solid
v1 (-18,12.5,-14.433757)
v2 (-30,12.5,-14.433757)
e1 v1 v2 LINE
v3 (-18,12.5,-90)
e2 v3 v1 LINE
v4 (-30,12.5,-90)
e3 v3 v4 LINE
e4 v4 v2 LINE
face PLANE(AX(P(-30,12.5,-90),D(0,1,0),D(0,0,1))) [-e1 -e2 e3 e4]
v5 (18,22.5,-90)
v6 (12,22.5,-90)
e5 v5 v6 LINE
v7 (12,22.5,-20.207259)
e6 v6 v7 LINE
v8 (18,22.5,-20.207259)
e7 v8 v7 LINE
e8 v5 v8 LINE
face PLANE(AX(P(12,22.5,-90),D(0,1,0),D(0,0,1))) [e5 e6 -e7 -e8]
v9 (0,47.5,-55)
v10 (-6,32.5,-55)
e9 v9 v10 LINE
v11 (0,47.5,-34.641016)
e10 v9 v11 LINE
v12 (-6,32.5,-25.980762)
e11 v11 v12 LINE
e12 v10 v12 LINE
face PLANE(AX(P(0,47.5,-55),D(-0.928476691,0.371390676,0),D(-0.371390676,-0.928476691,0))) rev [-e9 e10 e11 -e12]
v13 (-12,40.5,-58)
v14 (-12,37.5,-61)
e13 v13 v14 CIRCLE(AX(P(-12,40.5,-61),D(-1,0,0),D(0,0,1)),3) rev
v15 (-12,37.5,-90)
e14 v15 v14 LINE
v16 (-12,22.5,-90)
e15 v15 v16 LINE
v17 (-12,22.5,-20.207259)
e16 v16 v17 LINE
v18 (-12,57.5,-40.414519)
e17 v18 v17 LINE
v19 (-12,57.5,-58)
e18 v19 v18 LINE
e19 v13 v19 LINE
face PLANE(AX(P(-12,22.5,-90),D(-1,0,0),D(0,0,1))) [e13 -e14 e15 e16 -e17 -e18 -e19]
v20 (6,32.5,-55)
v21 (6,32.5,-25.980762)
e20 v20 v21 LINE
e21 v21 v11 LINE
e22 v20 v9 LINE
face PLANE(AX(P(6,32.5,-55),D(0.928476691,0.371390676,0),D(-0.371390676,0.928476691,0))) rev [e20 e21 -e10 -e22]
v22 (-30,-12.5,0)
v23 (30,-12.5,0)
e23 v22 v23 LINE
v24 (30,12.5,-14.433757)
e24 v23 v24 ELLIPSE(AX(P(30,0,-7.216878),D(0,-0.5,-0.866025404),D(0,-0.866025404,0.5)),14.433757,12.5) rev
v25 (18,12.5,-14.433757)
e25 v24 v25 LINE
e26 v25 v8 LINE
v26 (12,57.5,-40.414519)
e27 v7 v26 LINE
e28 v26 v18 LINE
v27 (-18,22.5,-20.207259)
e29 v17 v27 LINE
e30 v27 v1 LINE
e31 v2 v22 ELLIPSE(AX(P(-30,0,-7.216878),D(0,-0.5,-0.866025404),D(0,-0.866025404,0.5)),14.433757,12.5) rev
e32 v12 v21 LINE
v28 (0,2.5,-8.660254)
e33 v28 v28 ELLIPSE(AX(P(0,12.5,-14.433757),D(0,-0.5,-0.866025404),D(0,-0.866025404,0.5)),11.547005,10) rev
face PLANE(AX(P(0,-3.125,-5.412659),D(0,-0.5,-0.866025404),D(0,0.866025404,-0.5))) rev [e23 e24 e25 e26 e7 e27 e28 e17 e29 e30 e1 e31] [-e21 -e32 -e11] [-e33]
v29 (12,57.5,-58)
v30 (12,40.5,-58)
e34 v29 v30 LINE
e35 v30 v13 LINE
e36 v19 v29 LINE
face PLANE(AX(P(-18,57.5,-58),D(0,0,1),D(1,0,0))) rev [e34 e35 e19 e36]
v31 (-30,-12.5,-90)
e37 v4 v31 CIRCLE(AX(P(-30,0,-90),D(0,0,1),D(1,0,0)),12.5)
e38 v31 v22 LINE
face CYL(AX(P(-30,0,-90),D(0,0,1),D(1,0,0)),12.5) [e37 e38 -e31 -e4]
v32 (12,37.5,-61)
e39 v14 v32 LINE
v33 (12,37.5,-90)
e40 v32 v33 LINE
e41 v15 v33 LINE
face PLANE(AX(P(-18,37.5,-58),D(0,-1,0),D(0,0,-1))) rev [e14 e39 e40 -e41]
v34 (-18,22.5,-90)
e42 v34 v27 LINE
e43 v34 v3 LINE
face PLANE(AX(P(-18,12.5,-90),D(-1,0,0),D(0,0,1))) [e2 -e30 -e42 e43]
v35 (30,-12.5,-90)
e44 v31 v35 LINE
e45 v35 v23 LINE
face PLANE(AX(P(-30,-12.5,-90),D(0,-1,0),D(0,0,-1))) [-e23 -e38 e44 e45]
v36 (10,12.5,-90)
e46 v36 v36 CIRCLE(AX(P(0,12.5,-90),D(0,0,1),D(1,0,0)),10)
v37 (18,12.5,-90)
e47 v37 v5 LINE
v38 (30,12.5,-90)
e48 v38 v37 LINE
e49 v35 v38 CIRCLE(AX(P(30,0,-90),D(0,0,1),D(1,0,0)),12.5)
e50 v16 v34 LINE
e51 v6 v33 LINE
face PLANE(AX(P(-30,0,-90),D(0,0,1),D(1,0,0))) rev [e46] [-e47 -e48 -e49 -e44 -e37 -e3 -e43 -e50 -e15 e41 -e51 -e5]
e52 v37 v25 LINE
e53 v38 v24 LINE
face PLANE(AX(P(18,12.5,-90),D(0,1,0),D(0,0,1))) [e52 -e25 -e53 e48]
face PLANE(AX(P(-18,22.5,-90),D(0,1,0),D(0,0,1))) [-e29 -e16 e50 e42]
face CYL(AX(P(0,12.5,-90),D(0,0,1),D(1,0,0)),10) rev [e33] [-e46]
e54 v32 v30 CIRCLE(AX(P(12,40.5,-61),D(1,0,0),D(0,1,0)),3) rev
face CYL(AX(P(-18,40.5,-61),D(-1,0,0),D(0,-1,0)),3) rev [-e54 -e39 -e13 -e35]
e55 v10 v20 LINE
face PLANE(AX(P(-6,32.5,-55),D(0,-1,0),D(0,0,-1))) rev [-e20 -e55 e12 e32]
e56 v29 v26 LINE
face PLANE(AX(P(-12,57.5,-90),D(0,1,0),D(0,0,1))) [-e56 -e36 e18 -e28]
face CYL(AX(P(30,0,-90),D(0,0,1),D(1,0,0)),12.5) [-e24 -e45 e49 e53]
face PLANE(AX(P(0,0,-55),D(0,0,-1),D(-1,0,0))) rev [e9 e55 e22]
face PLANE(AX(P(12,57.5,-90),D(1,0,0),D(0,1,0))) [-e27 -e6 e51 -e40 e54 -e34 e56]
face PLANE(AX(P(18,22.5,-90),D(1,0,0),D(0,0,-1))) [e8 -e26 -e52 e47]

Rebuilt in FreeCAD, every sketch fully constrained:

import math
import FreeCAD as App
import Part
import Sketcher
from FreeCAD import Vector
Q = App.Units.Quantity


def edges_at(feature, points):
    """Names of the edges that pass closest to the given points."""
    edges = feature.Shape.Edges
    near = lambda p: min(range(len(edges)), key=lambda i: edges[i].distToShape(Part.Vertex(*p))[0])
    return sorted({f"Edge{near(p) + 1}" for p in points})


def add_polygon(sketch, points):
    """Adds a closed chain of lines whose ends are joined by coincident constraints."""
    first, n = sketch.GeometryCount, len(points)
    for a, b in zip(points, points[1:] + points[:1]):
        sketch.addGeometry(Part.LineSegment(App.Vector(*a, 0), App.Vector(*b, 0)), False)
    for i in range(n):
        sketch.addConstraint(Sketcher.Constraint("Coincident", first + i, 2, first + (i + 1) % n, 1))

doc = App.newDocument("Part")
body = doc.addObject("PartDesign::Body", "Body")

sketch1 = doc.addObject("Sketcher::SketchObject", "Sketch")
body.addObject(sketch1)
sketch1.AttachmentSupport = (doc.XY_Plane, [""])
sketch1.MapMode = "FlatFace"
sketch1.addGeometry([
    Part.LineSegment(Vector(-18, 12, 0), Vector(-30, 12, 0)),
    Part.ArcOfCircle(Part.Circle(Vector(-30, 0, 0), Vector(0, 0, 1), 12), math.radians(90), math.radians(270)),
    Part.LineSegment(Vector(-30, -12, 0), Vector(30, -12, 0)),
    Part.ArcOfCircle(Part.Circle(Vector(30, 0, 0), Vector(0, 0, 1), 12), math.radians(-90), math.radians(90)),
    Part.LineSegment(Vector(30, 12, 0), Vector(18, 12, 0)),
    Part.LineSegment(Vector(18, 12, 0), Vector(18, 22, 0)),
    Part.LineSegment(Vector(18, 22, 0), Vector(12, 22, 0)),
    Part.LineSegment(Vector(12, 22, 0), Vector(12, 58, 0)),
    Part.LineSegment(Vector(12, 58, 0), Vector(-12, 58, 0)),
    Part.LineSegment(Vector(-12, 58, 0), Vector(-12, 22, 0)),
    Part.LineSegment(Vector(-12, 22, 0), Vector(-18, 22, 0)),
    Part.LineSegment(Vector(-18, 22, 0), Vector(-18, 12, 0)),
    Part.Circle(Vector(0, 12, 0), Vector(0, 0, 1), 10),
], False)
sketch1.addConstraint([
    Sketcher.Constraint("Tangent", 0, 2, 1, 1),
    Sketcher.Constraint("Tangent", 1, 2, 2, 1),
    Sketcher.Constraint("Tangent", 2, 2, 3, 1),
    Sketcher.Constraint("Tangent", 3, 2, 4, 1),
    Sketcher.Constraint("Coincident", 4, 2, 5, 1),
    Sketcher.Constraint("Coincident", 5, 2, 6, 1),
    Sketcher.Constraint("Coincident", 6, 2, 7, 1),
    Sketcher.Constraint("Coincident", 7, 2, 8, 1),
    Sketcher.Constraint("Coincident", 8, 2, 9, 1),
    Sketcher.Constraint("Coincident", 9, 2, 10, 1),
    Sketcher.Constraint("Coincident", 10, 2, 11, 1),
    Sketcher.Constraint("Coincident", 11, 2, 0, 1),
    Sketcher.Constraint("Horizontal", 0),
    Sketcher.Constraint("Horizontal", 2),
    Sketcher.Constraint("Horizontal", 4),
    Sketcher.Constraint("Vertical", 5),
    Sketcher.Constraint("Horizontal", 6),
    Sketcher.Constraint("Vertical", 7),
    Sketcher.Constraint("Horizontal", 8),
    Sketcher.Constraint("Vertical", 9),
    Sketcher.Constraint("Horizontal", 10),
    Sketcher.Constraint("Vertical", 11),
    Sketcher.Constraint("Equal", 1, 3),
    Sketcher.Constraint("Symmetric", 1, 3, 3, 3, -1, 1),
    Sketcher.Constraint("Symmetric", 6, 2, 9, 2, -2),
    Sketcher.Constraint("PointOnObject", 12, 3, -2),
    Sketcher.Constraint("Horizontal", 12, 3, 0, 2),
    Sketcher.Constraint("Equal", 0, 4),
    Sketcher.Constraint("Diameter", 12, Q("20 mm")),
    Sketcher.Constraint("Radius", 1, Q("12.5 mm")),
    Sketcher.Constraint("DistanceX", 0, 2, 0, 1, Q("12 mm")),
    Sketcher.Constraint("DistanceX", 2, 1, 2, 2, Q("60 mm")),
    Sketcher.Constraint("DistanceX", 6, 2, 6, 1, Q("6 mm")),
    Sketcher.Constraint("DistanceY", 5, 1, 5, 2, Q("10 mm")),
    Sketcher.Constraint("DistanceY", 7, 1, 7, 2, Q("35 mm")),
])
pad1 = doc.addObject("PartDesign::Pad", "Pad")
body.addObject(pad1)
pad1.Profile = sketch1
pad1.Length = 90
pad1.Reversed = True

sketch2 = doc.addObject("Sketcher::SketchObject", "Sketch001")
body.addObject(sketch2)
sketch2.AttachmentSupport = (doc.YZ_Plane, [""])
sketch2.MapMode = "FlatFace"
sketch2.AttachmentOffset = App.Placement(Vector(0, 0, 12), App.Rotation())
add_polygon(sketch2, [(58, -58), (38, -58), (38, -90), (58, -90)])
sketch2.addConstraint([
    Sketcher.Constraint("Horizontal", 0),
    Sketcher.Constraint("Vertical", 1),
    Sketcher.Constraint("Horizontal", 2),
    Sketcher.Constraint("Vertical", 3),
    Sketcher.Constraint("DistanceX", 0, 2, 0, 1, Q("20 mm")),
    Sketcher.Constraint("DistanceY", 1, 2, 1, 1, Q("32 mm")),
    Sketcher.Constraint("DistanceY", 0, 2, -1, 1, Q("58 mm")),
    Sketcher.Constraint("DistanceX", -1, 1, 0, 2, Q("37.5 mm")),
])
pocket1 = doc.addObject("PartDesign::Pocket", "Pocket")
body.addObject(pocket1)
pocket1.Profile = sketch2
pocket1.Length = 30
doc.recompute()

fillet = doc.addObject("PartDesign::Fillet", "Fillet")
body.addObject(fillet)
fillet.Base = (pocket1, edges_at(pocket1, [(0, 37.5, -58)]))
fillet.Radius = 3

sketch3 = doc.addObject("Sketcher::SketchObject", "Sketch002")
body.addObject(sketch3)
sketch3.AttachmentSupport = (doc.XY_Plane, [""])
sketch3.MapMode = "FlatFace"
add_polygon(sketch3, [(0, 48), (-6, 32), (6, 32)])
sketch3.addConstraint([
    Sketcher.Constraint("Horizontal", 1),
    Sketcher.Constraint("PointOnObject", 2, 2, -2),
    Sketcher.Constraint("Equal", 0, 2),
    Sketcher.Constraint("DistanceX", 1, 1, 1, 2, Q("12 mm")),
    Sketcher.Constraint("DistanceY", 0, 2, 2, 2, Q("15 mm")),
    Sketcher.Constraint("DistanceY", -1, 1, 0, 2, Q("32.5 mm")),
])
pocket2 = doc.addObject("PartDesign::Pocket", "Pocket001")
body.addObject(pocket2)
pocket2.Profile = sketch3
pocket2.Length = 55

sketch4 = doc.addObject("Sketcher::SketchObject", "Sketch003")
body.addObject(sketch4)
sketch4.Placement = App.Placement(Vector(0, -3.125, -5.412659), App.Rotation(Vector(1, 0, 0), Vector(0, 0.866025404, -0.5), Vector(0, 0.5, 0.866025404), "ZXY"))
add_polygon(sketch4, [(-45, 79), (-45, -13), (48, -13), (48, 79)])
sketch4.addConstraint([
    Sketcher.Constraint("Vertical", 0),
    Sketcher.Constraint("Horizontal", 1),
    Sketcher.Constraint("Vertical", 2),
    Sketcher.Constraint("Horizontal", 3),
    Sketcher.Constraint("DistanceX", 1, 1, 1, 2, Q("93.565518 mm")),
    Sketcher.Constraint("DistanceY", 0, 2, 0, 1, Q("91.977476 mm")),
    Sketcher.Constraint("DistanceX", 0, 2, -1, 1, Q("45.211934 mm")),
    Sketcher.Constraint("DistanceY", 0, 2, -1, 1, Q("13.091774 mm")),
])
pocket3 = doc.addObject("PartDesign::Pocket", "Pocket002")
body.addObject(pocket3)
pocket3.Profile = sketch4
pocket3.Length = 55
pocket3.Reversed = True

doc.recompute()
